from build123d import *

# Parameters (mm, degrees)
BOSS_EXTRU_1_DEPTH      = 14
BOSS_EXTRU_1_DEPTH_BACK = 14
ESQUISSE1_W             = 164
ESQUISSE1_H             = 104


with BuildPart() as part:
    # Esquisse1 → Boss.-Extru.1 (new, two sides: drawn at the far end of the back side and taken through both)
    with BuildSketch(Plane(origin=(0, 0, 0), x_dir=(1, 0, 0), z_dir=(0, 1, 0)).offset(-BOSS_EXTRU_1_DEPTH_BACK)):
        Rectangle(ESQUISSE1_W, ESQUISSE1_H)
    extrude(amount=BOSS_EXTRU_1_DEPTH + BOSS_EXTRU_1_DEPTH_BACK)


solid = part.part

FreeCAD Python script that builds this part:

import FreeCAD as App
import Part
import Sketcher
Q = App.Units.Quantity

doc = App.newDocument("Part")
params = doc.addObject("Spreadsheet::Sheet", "Params")
for row, (alias, value) in enumerate([
    ("sketch1_width", "164 mm"),
    ("sketch1_height", "104 mm"),
    ("pad1_length", "14 mm"),
    ("pad1_length2", "14 mm"),
], start=1):
    params.set(f"A{row}", alias)
    params.set(f"B{row}", "=" + value)
    params.setAlias(f"B{row}", alias)

body = doc.addObject("PartDesign::Body", "Body")

# Sketch on XZ plane
sketch1 = body.newObject("Sketcher::SketchObject", "Sketch")
sketch1.AttachmentSupport = (doc.getObject("XZ_Plane"), [""])
sketch1.MapMode = "FlatFace"
sketch1.addGeometry(Part.LineSegment(App.Vector(-82, -52, 0), App.Vector(-82, 52, 0)), False)
sketch1.addGeometry(Part.LineSegment(App.Vector(-82, 52, 0), App.Vector(82, 52, 0)), False)
sketch1.addGeometry(Part.LineSegment(App.Vector(82, 52, 0), App.Vector(82, -52, 0)), False)
sketch1.addGeometry(Part.LineSegment(App.Vector(82, -52, 0), App.Vector(-82, -52, 0)), False)
sketch1.addConstraint(Sketcher.Constraint("Coincident", 0, 2, 1, 1))
sketch1.addConstraint(Sketcher.Constraint("Coincident", 1, 2, 2, 1))
sketch1.addConstraint(Sketcher.Constraint("Coincident", 2, 2, 3, 1))
sketch1.addConstraint(Sketcher.Constraint("Coincident", 3, 2, 0, 1))
sketch1.addConstraint(Sketcher.Constraint("Vertical", 0))
sketch1.addConstraint(Sketcher.Constraint("Horizontal", 1))
sketch1.addConstraint(Sketcher.Constraint("Vertical", 2))
sketch1.addConstraint(Sketcher.Constraint("Horizontal", 3))
sketch1.addConstraint(Sketcher.Constraint("Symmetric", 0, 2, 2, 2, -1, 1))
sketch1.addConstraint(Sketcher.Constraint("DistanceX", 1, 1, 1, 2, Q("164 mm")))
sketch1.addConstraint(Sketcher.Constraint("DistanceY", 0, 1, 0, 2, Q("104 mm")))
sketch1.setExpression("Constraints[9]", "Params.sketch1_width")
sketch1.setExpression("Constraints[10]", "Params.sketch1_height")
pad1 = body.newObject("PartDesign::Pad", "Pad")
pad1.Profile = sketch1
pad1.Type = "TwoLengths"
pad1.setExpression("Length", "Params.pad1_length")
pad1.setExpression("Length2", "Params.pad1_length2")
pad1.Reversed = True

doc.recompute()
